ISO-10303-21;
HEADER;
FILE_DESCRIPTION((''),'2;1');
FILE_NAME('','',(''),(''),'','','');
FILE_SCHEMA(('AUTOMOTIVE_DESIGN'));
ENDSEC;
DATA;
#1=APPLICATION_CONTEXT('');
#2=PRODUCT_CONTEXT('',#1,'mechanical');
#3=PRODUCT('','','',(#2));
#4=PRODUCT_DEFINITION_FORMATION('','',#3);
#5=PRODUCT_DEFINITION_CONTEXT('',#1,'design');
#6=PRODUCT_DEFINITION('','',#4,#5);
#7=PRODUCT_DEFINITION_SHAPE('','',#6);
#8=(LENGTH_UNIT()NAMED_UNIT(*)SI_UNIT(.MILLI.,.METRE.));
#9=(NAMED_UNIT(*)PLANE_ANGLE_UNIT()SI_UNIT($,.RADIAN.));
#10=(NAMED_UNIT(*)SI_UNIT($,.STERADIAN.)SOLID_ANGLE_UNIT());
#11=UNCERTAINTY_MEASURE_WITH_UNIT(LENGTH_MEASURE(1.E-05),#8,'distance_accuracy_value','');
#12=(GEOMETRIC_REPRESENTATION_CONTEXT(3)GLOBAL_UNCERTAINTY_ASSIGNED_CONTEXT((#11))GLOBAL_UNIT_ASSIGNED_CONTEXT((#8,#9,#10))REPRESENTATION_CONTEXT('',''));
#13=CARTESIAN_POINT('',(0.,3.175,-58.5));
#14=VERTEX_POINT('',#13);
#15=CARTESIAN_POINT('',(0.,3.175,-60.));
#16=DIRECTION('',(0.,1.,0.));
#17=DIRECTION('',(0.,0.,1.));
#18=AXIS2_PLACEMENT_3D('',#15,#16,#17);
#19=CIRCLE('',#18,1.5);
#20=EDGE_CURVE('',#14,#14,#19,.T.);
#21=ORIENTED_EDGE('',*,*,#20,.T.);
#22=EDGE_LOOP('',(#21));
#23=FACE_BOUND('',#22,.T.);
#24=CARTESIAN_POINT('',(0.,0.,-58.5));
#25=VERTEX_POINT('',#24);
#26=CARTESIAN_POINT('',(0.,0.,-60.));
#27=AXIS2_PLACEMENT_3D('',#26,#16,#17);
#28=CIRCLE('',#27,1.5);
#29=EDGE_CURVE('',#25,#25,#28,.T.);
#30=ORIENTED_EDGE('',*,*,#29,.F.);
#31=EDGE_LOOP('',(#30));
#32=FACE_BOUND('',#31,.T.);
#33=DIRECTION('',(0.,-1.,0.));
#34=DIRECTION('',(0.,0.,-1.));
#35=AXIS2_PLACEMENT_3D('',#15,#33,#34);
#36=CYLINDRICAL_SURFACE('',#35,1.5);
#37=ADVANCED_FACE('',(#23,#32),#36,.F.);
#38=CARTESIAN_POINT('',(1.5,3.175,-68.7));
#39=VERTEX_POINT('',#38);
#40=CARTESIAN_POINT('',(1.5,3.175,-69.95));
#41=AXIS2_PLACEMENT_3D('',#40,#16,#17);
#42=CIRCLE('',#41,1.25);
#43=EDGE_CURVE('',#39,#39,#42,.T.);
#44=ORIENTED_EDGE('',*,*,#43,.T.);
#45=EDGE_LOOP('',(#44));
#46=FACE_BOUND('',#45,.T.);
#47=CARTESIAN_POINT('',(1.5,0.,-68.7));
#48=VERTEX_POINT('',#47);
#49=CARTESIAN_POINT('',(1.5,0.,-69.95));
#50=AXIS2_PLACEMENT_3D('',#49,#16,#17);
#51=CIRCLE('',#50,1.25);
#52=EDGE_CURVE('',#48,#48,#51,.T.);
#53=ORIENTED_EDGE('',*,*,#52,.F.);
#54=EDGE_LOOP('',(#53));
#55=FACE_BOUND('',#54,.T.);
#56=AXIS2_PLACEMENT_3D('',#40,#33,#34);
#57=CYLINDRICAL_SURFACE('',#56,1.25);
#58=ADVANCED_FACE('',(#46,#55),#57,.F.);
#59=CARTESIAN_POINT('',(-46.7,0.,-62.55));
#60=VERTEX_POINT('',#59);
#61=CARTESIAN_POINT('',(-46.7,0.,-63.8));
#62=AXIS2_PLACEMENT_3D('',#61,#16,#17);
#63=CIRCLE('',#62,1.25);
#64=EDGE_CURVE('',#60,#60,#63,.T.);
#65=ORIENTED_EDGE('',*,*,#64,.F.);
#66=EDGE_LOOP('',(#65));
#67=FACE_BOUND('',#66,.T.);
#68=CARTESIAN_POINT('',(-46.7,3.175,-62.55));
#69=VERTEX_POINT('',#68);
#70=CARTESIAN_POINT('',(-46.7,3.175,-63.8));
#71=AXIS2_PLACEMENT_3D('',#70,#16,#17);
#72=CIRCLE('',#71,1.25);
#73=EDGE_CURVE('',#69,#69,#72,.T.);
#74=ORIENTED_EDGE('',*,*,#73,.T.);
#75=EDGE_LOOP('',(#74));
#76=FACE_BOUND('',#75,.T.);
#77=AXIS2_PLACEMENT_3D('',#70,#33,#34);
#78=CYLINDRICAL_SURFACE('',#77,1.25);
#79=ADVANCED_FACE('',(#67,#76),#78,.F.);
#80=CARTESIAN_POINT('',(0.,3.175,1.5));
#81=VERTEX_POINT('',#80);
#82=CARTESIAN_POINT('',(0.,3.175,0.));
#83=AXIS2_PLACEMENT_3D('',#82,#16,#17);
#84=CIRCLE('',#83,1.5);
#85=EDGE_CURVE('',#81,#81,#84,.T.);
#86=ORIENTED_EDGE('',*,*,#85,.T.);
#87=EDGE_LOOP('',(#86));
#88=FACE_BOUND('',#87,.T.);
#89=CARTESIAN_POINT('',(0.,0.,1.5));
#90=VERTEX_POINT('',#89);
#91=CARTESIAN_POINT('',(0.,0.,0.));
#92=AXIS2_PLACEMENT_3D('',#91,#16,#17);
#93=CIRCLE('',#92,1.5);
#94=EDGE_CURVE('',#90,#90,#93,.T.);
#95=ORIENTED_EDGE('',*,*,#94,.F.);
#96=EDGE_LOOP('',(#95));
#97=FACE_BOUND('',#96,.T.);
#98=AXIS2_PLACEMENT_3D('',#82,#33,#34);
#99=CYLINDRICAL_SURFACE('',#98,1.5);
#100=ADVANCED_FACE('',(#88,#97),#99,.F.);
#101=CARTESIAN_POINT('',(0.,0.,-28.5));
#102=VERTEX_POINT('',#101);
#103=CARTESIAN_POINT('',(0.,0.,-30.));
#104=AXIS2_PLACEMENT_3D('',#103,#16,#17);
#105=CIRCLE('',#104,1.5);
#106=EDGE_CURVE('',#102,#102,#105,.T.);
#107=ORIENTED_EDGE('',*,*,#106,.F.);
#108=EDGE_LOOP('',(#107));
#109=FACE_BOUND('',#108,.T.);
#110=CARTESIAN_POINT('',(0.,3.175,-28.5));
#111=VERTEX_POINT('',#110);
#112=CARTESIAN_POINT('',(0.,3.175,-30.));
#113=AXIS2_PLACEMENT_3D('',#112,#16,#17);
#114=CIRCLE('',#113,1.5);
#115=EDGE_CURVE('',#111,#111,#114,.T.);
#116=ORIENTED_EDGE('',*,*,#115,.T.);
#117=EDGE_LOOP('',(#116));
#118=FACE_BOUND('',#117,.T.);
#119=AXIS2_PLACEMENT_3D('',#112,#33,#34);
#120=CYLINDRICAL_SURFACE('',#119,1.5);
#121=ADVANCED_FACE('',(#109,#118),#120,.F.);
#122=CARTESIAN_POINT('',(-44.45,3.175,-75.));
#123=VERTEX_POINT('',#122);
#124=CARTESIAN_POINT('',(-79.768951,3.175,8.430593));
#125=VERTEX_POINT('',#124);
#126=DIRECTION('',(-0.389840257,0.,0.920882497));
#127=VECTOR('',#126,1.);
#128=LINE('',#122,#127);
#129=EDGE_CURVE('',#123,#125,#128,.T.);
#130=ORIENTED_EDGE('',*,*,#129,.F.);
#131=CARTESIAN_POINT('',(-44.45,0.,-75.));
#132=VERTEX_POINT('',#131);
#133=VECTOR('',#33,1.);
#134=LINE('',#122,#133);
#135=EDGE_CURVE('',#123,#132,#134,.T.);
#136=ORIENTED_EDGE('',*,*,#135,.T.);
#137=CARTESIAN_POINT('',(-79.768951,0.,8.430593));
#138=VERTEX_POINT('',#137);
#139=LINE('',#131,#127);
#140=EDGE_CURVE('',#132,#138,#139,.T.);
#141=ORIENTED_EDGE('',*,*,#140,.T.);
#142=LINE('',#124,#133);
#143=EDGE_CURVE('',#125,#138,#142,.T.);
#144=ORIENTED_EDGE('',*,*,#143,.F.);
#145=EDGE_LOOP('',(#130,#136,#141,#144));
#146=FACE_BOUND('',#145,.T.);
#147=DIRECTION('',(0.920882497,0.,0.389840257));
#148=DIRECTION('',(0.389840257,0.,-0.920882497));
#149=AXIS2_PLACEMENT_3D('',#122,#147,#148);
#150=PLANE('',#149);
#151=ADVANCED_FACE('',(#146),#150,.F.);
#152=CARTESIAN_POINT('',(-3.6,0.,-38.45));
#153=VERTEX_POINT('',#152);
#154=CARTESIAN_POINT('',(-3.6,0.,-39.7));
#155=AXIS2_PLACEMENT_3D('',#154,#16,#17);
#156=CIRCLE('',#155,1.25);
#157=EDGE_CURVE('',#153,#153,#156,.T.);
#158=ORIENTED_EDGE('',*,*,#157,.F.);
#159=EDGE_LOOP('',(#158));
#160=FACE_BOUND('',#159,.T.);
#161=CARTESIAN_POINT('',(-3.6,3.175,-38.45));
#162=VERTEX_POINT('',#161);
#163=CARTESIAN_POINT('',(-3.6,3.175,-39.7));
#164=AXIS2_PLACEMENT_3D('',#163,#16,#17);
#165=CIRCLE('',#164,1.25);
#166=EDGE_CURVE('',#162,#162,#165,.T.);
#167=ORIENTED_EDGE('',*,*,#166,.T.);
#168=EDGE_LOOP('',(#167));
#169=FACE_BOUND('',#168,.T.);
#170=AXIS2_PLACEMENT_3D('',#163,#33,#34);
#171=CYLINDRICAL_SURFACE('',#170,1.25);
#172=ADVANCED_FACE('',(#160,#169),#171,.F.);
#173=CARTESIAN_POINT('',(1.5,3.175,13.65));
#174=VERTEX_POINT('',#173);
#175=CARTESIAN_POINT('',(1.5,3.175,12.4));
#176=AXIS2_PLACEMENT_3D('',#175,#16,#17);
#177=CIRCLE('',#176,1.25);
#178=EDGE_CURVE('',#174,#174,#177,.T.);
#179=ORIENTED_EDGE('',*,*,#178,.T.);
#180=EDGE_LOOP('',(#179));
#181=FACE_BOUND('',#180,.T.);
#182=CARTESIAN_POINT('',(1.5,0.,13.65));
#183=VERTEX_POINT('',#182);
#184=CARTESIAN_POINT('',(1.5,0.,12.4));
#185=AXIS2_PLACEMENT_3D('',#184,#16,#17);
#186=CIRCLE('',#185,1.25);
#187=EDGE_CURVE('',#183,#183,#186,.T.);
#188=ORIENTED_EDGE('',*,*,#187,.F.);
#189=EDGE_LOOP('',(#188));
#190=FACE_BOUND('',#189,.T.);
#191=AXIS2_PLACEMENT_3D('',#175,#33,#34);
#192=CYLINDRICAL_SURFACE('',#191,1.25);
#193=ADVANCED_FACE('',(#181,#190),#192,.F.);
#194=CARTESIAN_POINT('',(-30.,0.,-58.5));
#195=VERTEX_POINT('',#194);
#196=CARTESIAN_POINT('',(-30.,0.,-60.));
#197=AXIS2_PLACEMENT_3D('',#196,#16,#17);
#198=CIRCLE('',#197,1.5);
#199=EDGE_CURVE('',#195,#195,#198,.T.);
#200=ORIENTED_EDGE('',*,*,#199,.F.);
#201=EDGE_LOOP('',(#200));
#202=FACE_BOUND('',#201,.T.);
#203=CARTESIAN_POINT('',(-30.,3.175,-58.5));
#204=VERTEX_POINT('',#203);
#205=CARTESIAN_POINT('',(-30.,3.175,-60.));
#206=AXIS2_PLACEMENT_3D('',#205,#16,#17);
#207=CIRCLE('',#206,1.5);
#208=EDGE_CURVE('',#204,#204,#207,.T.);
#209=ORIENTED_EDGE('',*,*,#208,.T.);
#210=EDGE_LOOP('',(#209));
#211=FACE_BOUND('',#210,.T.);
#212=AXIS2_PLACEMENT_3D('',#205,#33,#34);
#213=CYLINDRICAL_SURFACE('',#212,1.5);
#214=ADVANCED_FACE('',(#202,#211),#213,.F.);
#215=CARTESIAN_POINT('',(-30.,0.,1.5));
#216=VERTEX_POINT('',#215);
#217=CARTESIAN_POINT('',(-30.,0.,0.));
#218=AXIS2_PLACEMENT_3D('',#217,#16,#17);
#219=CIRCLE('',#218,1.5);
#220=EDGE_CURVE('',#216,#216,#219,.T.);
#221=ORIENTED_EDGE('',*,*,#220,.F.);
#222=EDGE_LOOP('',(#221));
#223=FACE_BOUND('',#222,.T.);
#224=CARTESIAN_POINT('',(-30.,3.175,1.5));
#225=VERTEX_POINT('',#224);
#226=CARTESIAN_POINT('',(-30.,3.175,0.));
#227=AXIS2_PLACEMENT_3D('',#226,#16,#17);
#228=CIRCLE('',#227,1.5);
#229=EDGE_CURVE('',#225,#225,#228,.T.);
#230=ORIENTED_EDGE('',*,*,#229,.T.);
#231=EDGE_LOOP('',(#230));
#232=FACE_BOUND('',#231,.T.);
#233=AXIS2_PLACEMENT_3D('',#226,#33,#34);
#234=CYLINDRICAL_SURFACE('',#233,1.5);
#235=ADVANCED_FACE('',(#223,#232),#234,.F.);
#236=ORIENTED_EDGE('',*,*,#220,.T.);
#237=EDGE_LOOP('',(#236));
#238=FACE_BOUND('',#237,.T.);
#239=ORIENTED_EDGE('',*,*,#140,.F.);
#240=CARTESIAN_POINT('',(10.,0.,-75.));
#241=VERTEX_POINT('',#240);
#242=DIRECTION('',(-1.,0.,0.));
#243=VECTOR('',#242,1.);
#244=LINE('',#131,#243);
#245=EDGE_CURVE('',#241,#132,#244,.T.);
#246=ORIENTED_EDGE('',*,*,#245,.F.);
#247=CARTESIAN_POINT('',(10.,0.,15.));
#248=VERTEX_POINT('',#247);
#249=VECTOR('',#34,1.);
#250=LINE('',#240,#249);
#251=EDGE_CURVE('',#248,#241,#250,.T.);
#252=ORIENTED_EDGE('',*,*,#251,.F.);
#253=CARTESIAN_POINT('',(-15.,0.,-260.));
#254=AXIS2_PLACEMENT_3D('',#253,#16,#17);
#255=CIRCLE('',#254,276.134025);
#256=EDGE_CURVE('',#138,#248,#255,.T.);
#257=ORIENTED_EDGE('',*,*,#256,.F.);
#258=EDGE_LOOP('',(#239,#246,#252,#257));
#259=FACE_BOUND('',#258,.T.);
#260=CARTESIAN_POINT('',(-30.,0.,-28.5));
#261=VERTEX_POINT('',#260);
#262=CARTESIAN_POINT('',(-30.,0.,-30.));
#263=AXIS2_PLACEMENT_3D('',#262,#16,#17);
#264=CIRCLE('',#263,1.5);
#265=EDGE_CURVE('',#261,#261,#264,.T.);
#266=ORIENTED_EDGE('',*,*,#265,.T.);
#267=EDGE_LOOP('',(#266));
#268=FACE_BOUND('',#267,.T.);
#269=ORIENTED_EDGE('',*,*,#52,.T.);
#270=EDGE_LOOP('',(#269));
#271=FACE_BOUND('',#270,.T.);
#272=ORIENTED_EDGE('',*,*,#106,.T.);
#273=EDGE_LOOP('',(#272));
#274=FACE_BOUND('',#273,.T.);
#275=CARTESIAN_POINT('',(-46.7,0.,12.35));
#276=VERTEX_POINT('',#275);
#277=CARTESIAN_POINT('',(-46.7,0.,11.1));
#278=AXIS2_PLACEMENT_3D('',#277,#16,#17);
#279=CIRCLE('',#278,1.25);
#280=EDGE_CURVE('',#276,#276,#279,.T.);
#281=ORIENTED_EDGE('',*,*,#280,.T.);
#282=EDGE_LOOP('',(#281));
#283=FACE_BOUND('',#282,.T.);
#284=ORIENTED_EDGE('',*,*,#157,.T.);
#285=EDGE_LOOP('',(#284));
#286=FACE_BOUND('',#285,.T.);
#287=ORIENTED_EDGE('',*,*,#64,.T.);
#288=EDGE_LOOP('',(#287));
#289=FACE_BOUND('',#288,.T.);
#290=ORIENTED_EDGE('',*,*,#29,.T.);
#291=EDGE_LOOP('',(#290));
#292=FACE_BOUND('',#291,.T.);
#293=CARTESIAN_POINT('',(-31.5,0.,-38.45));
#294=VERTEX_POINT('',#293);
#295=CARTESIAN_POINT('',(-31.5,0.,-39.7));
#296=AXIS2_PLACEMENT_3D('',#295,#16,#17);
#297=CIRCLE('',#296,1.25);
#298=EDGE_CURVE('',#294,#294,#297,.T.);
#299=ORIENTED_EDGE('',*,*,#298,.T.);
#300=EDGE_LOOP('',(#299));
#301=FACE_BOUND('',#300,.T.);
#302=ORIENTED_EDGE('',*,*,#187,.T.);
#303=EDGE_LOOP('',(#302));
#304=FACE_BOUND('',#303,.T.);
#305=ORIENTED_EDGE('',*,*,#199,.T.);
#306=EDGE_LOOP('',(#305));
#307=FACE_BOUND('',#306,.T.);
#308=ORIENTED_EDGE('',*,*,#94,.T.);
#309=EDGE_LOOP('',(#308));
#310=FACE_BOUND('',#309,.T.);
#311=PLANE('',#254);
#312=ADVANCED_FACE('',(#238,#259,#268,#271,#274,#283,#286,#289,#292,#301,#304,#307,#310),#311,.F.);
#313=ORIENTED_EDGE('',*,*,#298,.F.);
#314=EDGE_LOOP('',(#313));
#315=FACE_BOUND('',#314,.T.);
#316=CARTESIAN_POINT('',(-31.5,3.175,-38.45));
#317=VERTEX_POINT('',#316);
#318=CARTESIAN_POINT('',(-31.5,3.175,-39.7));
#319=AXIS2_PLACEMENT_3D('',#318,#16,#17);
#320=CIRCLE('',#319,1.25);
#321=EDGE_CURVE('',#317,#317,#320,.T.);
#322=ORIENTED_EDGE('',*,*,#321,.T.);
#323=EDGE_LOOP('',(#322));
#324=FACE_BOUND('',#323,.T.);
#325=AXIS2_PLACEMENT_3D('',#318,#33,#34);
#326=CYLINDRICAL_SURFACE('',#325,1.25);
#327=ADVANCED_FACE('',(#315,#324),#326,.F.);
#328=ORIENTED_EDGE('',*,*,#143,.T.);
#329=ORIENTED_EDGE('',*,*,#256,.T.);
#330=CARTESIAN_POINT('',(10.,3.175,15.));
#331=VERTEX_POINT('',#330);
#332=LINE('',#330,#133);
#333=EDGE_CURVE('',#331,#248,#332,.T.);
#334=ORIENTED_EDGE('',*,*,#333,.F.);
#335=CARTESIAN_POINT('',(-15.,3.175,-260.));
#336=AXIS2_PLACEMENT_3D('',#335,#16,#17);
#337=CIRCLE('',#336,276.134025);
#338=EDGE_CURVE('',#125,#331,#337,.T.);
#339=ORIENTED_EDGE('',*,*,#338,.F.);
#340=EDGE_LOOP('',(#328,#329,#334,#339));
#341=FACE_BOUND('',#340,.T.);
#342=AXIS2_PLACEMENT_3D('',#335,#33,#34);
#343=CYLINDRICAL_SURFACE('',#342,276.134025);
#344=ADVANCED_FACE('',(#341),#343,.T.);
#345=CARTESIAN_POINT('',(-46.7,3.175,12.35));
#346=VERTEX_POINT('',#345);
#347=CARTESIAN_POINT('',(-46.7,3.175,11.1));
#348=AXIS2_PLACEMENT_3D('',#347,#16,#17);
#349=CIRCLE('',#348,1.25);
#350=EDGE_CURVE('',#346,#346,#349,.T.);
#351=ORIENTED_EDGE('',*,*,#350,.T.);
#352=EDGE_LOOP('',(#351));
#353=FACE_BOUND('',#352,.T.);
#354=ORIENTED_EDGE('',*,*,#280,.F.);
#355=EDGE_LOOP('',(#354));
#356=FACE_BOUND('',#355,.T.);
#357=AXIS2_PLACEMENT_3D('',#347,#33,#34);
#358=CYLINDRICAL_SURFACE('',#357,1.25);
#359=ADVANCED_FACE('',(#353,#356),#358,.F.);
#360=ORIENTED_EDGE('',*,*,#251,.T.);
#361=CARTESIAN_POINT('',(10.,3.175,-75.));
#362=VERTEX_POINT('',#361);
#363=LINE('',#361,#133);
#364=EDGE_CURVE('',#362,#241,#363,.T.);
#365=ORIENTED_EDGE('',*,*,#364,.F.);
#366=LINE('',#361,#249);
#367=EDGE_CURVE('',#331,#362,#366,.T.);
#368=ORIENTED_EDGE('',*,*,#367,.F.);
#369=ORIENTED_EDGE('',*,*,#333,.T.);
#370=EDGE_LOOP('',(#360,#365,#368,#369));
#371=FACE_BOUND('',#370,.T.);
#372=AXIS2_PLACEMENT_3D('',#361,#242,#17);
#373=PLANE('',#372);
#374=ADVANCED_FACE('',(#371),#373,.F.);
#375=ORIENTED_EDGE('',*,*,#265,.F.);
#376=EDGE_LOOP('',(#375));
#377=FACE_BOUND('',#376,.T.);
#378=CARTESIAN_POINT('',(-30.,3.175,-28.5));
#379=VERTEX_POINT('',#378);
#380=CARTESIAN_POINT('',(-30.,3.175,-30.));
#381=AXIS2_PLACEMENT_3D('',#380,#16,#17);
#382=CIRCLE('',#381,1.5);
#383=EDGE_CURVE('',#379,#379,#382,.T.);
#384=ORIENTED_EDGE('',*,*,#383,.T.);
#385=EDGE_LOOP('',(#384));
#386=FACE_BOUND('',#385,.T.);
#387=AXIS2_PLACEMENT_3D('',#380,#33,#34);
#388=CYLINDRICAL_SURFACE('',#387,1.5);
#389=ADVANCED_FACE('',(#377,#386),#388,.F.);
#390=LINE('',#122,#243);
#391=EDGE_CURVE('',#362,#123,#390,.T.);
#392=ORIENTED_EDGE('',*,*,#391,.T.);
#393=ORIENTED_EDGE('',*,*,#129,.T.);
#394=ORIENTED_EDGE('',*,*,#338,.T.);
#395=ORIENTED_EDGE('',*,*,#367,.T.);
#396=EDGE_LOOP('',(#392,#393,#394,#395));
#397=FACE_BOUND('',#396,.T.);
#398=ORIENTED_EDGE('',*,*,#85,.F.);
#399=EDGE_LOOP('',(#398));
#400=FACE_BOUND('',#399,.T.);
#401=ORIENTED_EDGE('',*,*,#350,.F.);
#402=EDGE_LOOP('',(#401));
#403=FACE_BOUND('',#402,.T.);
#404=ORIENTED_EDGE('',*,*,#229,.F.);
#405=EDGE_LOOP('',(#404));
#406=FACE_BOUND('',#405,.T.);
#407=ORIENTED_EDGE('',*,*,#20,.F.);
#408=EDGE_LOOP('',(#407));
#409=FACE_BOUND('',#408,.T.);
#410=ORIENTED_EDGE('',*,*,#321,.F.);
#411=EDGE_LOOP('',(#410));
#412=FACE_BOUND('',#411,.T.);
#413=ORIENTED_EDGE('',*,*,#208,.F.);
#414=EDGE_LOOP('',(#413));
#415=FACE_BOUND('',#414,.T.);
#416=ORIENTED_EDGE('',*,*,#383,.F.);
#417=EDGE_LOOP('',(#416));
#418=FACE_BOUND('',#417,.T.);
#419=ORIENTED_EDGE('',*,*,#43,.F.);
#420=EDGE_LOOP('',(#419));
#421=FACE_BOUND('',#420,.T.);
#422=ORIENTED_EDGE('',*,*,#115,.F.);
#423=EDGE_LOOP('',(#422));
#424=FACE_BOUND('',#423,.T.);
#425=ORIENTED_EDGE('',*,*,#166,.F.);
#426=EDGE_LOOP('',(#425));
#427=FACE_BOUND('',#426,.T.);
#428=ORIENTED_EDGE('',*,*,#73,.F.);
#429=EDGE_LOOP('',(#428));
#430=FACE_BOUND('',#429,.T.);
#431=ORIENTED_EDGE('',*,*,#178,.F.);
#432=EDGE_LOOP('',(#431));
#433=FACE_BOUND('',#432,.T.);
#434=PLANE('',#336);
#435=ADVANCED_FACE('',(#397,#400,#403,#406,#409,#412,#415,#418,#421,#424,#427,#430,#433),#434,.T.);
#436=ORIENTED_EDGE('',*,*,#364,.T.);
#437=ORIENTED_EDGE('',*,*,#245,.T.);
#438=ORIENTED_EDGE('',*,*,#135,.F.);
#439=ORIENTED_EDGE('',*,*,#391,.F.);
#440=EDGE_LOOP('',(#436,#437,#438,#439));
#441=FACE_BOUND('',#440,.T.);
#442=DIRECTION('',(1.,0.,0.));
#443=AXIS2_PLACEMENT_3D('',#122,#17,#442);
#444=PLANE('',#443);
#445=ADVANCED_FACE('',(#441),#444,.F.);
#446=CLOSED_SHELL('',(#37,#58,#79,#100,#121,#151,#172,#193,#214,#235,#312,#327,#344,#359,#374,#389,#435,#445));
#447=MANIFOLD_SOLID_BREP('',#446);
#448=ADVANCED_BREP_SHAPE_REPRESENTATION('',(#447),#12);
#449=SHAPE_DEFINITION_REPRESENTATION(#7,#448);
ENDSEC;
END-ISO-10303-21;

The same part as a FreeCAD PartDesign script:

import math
import FreeCAD as App
import Part
import Sketcher
from FreeCAD import Vector

doc = App.newDocument("Part")
params = doc.addObject("Spreadsheet::Sheet", "Params")
for row, (alias, value) in enumerate([
    ("sketch1_diameter", "3 mm"),
    ("sketch1_diameter2", "2.5 mm"),
    ("sketch1_height", "90 mm"),
    ("sketch1_width", "54.45 mm"),
    ("pad1_length", "3.175 mm"),
], start=1):
    params.set(f"A{row}", alias)
    params.set(f"B{row}", "=" + value)
    params.setAlias(f"B{row}", alias)

body = doc.addObject("PartDesign::Body", "Body")

# Sketch on XZ plane
sketch1 = body.newObject("Sketcher::SketchObject", "Sketch")
sketch1.AttachmentSupport = (doc.getObject("XZ_Plane"), [""])
sketch1.MapMode = "FlatFace"
sketch1.addGeometry([
    Part.LineSegment(Vector(10, -75, 0), Vector(-44.45, -75, 0)),  # 0
    Part.LineSegment(Vector(-44.45, -75, 0), Vector(-79.768951, 8.430593, 0)),  # 1
    Part.ArcOfCircle(Part.Circle(Vector(-15, -260, 0), Vector(0, 0, 1), 276.134025), math.radians(84.805571), math.radians(103.565464)),  # 2
    Part.LineSegment(Vector(10, 15, 0), Vector(10, -75, 0)),  # 3
    Part.Circle(Vector(1.5, 12.4, 0), Vector(0, 0, 1), 1.25),  # 4
    Part.Circle(Vector(0, 0, 0), Vector(0, 0, 1), 1.5),  # 5
    Part.Circle(Vector(-30, 0, 0), Vector(0, 0, 1), 1.5),  # 6
    Part.Circle(Vector(-46.7, 11.1, 0), Vector(0, 0, 1), 1.25),  # 7
    Part.Circle(Vector(0, -30, 0), Vector(0, 0, 1), 1.5),  # 8
    Part.Circle(Vector(-3.6, -39.7, 0), Vector(0, 0, 1), 1.25),  # 9
    Part.Circle(Vector(0, -60, 0), Vector(0, 0, 1), 1.5),  # 10
    Part.Circle(Vector(1.5, -69.95, 0), Vector(0, 0, 1), 1.25),  # 11
    Part.Circle(Vector(-30, -30, 0), Vector(0, 0, 1), 1.5),  # 12
    Part.Circle(Vector(-31.5, -39.7, 0), Vector(0, 0, 1), 1.25),  # 13
    Part.Circle(Vector(-30, -60, 0), Vector(0, 0, 1), 1.5),  # 14
    Part.Circle(Vector(-46.7, -63.8, 0), Vector(0, 0, 1), 1.25),  # 15
], False)
sketch1.addConstraint([
    Sketcher.Constraint("Coincident", 0, 2, 1, 1),
    Sketcher.Constraint("Coincident", 1, 2, 2, 2),
    Sketcher.Constraint("Coincident", 2, 1, 3, 1),
    Sketcher.Constraint("Coincident", 3, 2, 0, 1),
    Sketcher.Constraint("Horizontal", 0),
    Sketcher.Constraint("Vertical", 3),
    Sketcher.Constraint("Coincident", 5, 3, -1, 1),
    Sketcher.Constraint("Equal", 5, 6),
    Sketcher.Constraint("Equal", 4, 7),
    Sketcher.Constraint("Equal", 6, 8),
    Sketcher.Constraint("Equal", 7, 9),
    Sketcher.Constraint("Equal", 8, 10),
    Sketcher.Constraint("Equal", 9, 11),
    Sketcher.Constraint("Equal", 10, 12),
    Sketcher.Constraint("Equal", 11, 13),
    Sketcher.Constraint("Equal", 12, 14),
    Sketcher.Constraint("Equal", 13, 15),
    Sketcher.Constraint("PointOnObject", 6, 3, -1),
    Sketcher.Constraint("PointOnObject", 8, 3, -2),
    Sketcher.Constraint("PointOnObject", 10, 3, -2),
    Sketcher.Constraint("Horizontal", 8, 3, 12, 3),
    Sketcher.Constraint("Horizontal", 9, 3, 13, 3),
    Sketcher.Constraint("Horizontal", 10, 3, 14, 3),
    Sketcher.Constraint("Vertical", 4, 3, 11, 3),
    Sketcher.Constraint("Vertical", 6, 3, 12, 3),
    Sketcher.Constraint("Vertical", 12, 3, 14, 3),
    Sketcher.Constraint("Vertical", 7, 3, 15, 3),
    Sketcher.Constraint("Diameter", 5, 3.0),
    Sketcher.Constraint("Diameter", 4, 2.5),
    Sketcher.Constraint("DistanceY", 3, 2, 3, 1, 90.0),
    Sketcher.Constraint("DistanceX", 2, 3, -1, 1, 15.0),
    Sketcher.Constraint("DistanceY", 2, 3, -1, 1, 260.0),
    Sketcher.Constraint("DistanceX", 6, 3, -1, 1, 30.0),
    Sketcher.Constraint("DistanceY", 8, 3, -1, 1, 30.0),
    Sketcher.Constraint("DistanceY", 10, 3, -1, 1, 60.0),
    Sketcher.Constraint("DistanceY", 0, 2, -1, 1, 75.0),
    Sketcher.Constraint("DistanceX", -1, 1, 2, 1, 10.0),
    Sketcher.Constraint("DistanceX", 0, 2, 0, 1, 54.45),
    Sketcher.Constraint("DistanceX", -1, 1, 4, 3, 1.5),
    Sketcher.Constraint("DistanceY", -1, 1, 4, 3, 12.4),
    Sketcher.Constraint("DistanceX", 7, 3, -1, 1, 46.7),
    Sketcher.Constraint("DistanceY", -1, 1, 7, 3, 11.1),
    Sketcher.Constraint("DistanceX", 9, 3, -1, 1, 3.6),
    Sketcher.Constraint("DistanceY", 9, 3, -1, 1, 39.7),
    Sketcher.Constraint("DistanceX", 13, 3, -1, 1, 31.5),
    Sketcher.Constraint("DistanceY", 15, 3, -1, 1, 63.8),
    Sketcher.Constraint("DistanceY", 11, 3, -1, 1, 69.95),
    Sketcher.Constraint("Distance", 1, 90.598521),
])
sketch1.setExpression("Constraints[27]", "Params.sketch1_diameter")
sketch1.setExpression("Constraints[28]", "Params.sketch1_diameter2")
sketch1.setExpression("Constraints[29]", "Params.sketch1_height")
sketch1.setExpression("Constraints[37]", "Params.sketch1_width")
pad1 = body.newObject("PartDesign::Pad", "Pad")
pad1.Profile = sketch1
pad1.setExpression("Length", "Params.pad1_length")
pad1.Reversed = True

doc.recompute()
